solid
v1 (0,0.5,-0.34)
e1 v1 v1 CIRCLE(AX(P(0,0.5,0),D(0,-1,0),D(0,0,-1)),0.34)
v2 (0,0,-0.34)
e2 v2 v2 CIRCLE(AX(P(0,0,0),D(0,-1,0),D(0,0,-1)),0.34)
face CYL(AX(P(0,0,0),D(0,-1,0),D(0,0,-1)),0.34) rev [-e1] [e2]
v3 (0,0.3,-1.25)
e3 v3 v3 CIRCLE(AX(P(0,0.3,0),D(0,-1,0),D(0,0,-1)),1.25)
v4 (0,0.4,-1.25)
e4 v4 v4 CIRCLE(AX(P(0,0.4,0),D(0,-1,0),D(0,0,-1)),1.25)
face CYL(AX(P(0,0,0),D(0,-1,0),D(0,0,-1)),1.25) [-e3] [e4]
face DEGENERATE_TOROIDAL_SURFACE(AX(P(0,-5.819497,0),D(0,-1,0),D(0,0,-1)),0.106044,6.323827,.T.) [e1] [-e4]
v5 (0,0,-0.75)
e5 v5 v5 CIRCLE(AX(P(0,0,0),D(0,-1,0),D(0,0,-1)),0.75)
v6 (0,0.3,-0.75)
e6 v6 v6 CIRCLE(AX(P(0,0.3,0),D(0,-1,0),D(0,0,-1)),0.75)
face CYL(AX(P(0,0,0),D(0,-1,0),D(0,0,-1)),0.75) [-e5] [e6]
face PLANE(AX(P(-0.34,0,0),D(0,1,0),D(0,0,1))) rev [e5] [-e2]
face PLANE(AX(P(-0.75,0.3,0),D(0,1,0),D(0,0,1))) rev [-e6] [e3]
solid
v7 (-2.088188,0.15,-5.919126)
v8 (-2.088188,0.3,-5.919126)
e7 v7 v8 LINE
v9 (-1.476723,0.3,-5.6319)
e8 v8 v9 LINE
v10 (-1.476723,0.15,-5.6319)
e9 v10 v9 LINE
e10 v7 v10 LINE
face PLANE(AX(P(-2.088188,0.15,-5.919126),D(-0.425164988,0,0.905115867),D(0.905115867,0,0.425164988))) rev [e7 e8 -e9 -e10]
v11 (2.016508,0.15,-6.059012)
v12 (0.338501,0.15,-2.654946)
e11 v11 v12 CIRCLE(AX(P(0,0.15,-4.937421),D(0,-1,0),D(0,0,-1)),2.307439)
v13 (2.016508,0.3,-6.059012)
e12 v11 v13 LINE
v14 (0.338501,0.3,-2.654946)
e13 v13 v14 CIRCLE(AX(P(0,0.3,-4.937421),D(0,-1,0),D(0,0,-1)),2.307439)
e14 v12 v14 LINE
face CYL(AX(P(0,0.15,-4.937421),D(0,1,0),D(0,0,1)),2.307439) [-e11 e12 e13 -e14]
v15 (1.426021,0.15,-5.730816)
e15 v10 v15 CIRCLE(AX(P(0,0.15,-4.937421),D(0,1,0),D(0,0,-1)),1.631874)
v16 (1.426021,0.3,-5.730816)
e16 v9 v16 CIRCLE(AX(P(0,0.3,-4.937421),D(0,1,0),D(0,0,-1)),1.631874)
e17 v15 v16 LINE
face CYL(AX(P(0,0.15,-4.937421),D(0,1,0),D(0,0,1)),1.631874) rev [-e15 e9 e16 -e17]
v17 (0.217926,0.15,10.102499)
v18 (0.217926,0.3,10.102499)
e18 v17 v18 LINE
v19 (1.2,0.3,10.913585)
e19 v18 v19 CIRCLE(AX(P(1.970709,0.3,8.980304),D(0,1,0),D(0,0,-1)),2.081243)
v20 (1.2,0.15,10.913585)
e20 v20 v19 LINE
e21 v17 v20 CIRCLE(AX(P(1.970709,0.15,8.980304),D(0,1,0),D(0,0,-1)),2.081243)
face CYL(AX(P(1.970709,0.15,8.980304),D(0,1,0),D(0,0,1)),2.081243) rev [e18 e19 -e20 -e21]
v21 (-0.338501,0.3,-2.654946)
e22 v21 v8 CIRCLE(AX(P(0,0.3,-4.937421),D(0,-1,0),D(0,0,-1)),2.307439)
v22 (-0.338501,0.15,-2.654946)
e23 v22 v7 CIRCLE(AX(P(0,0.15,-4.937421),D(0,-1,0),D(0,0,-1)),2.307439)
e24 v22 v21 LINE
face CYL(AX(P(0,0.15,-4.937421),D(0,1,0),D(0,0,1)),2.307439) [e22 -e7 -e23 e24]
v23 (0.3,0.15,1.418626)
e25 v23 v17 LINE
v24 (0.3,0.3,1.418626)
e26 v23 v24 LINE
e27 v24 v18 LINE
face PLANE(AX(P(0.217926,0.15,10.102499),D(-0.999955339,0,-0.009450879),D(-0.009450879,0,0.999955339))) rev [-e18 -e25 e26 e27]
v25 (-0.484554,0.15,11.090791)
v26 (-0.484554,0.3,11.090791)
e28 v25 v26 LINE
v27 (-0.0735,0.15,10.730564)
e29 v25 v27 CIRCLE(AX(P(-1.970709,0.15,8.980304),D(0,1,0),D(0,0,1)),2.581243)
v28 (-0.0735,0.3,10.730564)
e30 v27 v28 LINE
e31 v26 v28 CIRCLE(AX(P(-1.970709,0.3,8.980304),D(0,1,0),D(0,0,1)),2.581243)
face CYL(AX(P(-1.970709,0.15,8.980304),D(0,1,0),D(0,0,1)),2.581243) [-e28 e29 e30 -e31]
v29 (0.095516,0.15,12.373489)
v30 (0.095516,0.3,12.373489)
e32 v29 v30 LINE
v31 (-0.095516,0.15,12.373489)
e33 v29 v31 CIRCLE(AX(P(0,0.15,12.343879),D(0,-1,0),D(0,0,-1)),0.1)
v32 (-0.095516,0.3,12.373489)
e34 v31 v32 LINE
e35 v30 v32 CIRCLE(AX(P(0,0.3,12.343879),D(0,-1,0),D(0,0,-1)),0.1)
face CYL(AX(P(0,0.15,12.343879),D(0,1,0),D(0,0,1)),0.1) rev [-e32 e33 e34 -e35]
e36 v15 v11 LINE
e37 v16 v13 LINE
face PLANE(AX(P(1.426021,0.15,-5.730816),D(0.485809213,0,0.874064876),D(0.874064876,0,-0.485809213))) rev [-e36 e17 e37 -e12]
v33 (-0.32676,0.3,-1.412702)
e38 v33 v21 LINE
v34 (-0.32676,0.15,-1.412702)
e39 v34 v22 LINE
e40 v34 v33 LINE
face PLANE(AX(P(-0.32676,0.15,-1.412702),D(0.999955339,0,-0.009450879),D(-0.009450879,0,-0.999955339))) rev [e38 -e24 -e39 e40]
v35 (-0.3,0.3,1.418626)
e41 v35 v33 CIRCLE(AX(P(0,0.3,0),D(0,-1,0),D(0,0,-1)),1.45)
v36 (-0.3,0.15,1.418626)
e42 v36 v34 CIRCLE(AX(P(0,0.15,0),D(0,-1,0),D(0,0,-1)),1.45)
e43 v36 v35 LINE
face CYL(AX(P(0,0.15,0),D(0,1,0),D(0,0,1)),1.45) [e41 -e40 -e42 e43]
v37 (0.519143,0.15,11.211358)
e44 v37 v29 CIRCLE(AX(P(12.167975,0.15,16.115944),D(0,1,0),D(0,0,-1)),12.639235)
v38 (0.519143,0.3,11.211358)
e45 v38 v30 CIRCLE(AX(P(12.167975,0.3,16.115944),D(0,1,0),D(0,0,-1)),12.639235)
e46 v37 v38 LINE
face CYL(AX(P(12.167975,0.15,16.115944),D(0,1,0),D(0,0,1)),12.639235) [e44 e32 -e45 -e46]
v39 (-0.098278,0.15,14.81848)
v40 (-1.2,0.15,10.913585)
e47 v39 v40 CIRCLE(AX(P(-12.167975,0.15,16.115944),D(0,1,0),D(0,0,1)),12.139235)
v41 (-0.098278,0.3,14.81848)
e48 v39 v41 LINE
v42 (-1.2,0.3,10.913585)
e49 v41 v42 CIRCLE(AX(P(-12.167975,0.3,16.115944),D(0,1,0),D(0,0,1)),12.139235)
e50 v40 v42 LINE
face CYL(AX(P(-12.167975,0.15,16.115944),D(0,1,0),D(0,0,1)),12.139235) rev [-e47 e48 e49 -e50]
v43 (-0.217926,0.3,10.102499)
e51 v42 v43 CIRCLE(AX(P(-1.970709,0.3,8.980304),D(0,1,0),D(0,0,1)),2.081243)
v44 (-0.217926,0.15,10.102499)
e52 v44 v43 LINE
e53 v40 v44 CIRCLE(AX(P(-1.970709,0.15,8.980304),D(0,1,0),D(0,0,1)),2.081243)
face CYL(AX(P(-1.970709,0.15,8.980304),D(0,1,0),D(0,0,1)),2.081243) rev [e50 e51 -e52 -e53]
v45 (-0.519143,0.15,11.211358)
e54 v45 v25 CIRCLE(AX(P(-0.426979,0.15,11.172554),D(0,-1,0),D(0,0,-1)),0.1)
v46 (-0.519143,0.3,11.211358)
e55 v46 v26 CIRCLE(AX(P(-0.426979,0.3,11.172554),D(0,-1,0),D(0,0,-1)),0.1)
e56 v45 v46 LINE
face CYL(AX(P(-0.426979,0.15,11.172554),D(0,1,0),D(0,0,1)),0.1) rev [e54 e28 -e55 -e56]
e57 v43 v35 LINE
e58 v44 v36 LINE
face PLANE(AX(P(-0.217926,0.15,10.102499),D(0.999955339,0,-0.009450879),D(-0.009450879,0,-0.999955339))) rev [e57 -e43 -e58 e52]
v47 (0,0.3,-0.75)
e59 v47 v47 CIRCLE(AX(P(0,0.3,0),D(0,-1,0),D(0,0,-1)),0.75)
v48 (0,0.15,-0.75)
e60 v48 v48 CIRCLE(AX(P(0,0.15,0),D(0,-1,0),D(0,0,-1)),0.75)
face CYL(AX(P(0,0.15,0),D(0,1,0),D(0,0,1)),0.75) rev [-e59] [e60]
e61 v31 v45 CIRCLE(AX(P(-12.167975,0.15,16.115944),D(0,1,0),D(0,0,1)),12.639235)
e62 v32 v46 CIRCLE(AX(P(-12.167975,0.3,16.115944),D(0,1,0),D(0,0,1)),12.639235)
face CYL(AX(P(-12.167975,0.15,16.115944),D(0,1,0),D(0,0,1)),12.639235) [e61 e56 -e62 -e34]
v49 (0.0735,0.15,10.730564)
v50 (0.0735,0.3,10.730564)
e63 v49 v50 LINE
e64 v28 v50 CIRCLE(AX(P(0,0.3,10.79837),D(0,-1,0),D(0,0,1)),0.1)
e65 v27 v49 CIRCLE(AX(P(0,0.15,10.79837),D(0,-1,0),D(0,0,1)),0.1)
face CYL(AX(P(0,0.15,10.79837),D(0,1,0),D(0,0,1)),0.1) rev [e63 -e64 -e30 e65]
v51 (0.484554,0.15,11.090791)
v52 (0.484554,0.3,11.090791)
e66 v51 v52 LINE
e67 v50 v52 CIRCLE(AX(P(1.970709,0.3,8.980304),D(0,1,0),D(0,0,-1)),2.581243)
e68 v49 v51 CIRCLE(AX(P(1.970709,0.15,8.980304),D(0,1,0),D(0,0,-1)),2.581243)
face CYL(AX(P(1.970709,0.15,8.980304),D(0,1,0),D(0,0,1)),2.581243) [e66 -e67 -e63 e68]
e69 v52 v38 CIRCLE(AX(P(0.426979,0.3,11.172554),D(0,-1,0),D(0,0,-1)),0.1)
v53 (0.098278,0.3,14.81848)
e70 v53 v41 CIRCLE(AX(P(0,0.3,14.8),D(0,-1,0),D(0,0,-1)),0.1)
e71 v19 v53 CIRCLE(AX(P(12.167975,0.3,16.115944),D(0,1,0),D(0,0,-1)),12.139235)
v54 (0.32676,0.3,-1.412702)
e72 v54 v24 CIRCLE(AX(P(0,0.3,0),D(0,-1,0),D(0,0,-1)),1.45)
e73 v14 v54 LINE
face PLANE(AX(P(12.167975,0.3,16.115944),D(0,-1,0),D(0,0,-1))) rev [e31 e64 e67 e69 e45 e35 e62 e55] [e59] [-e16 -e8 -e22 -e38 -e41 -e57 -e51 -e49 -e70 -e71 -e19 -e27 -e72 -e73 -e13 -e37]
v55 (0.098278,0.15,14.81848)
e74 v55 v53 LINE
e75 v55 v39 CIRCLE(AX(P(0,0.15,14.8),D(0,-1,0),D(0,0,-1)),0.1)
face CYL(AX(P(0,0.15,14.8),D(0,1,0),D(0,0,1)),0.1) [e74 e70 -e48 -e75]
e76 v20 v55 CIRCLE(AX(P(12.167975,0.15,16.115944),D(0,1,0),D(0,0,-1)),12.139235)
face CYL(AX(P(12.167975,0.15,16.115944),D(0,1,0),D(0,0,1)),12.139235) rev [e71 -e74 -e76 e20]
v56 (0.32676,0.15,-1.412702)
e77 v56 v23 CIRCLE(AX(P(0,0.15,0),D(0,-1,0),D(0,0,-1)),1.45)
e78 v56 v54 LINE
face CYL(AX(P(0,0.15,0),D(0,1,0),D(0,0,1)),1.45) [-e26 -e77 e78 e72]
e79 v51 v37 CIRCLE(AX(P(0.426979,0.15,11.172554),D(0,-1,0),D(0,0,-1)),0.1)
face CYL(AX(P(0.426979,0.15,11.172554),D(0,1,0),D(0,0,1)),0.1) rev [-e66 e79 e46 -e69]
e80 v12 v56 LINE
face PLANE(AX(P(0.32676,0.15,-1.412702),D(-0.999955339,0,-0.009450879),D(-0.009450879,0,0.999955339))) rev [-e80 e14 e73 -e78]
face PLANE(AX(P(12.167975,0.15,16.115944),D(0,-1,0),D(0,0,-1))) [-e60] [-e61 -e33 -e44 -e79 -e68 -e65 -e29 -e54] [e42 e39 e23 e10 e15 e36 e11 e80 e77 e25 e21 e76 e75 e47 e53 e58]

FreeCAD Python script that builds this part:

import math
import FreeCAD as App
import Part
import Sketcher

V = App.Vector

doc = App.newDocument("Part")
body = doc.addObject("PartDesign::Body", "Body")

sketch1 = body.newObject("Sketcher::SketchObject", "Sketch")
sketch1.AttachmentSupport = (doc.getObject("XY_Plane"), [""])
sketch1.MapMode = "FlatFace"
sketch1.addGeometry([
    Part.LineSegment(V(-0.75, 0, 0), V(-0.34, 0, 0)),
    Part.LineSegment(V(-0.34, 0, 0), V(-0.34, 0.5, 0)),
    Part.ArcOfCircle(Part.Circle(V(-0.11, -5.82, 0), V(0, 0, 1), 6.32), math.radians(92.12), math.radians(100.42)),
    Part.LineSegment(V(-1.25, 0.4, 0), V(-1.25, 0.3, 0)),
    Part.LineSegment(V(-1.25, 0.3, 0), V(-0.75, 0.3, 0)),
    Part.LineSegment(V(-0.75, 0.3, 0), V(-0.75, 0, 0)),
], False)
sketch1.addConstraint([
    Sketcher.Constraint("Coincident", 0, 2, 1, 1),
    Sketcher.Constraint("Coincident", 1, 2, 2, 1),
    Sketcher.Constraint("Coincident", 2, 2, 3, 1),
    Sketcher.Constraint("Coincident", 3, 2, 4, 1),
    Sketcher.Constraint("Coincident", 4, 2, 5, 1),
    Sketcher.Constraint("Coincident", 5, 2, 0, 1),
    Sketcher.Constraint("Horizontal", 0),
    Sketcher.Constraint("Vertical", 1),
    Sketcher.Constraint("Vertical", 3),
    Sketcher.Constraint("Horizontal", 4),
    Sketcher.Constraint("Vertical", 5),
    Sketcher.Constraint("PointOnObject", 0, 2, -1),
    Sketcher.Constraint("Equal", 4, 1),
    Sketcher.Constraint("DistanceX", 4, 1, 4, 2, 0.5),
    Sketcher.Constraint("DistanceY", 3, 2, 3, 1, 0.1),
    Sketcher.Constraint("DistanceY", 5, 2, 5, 1, 0.3),
    Sketcher.Constraint("DistanceX", 0, 1, 0, 2, 0.41),
    Sketcher.Constraint("DistanceX", 0, 2, -1, 1, 0.34),
    Sketcher.Constraint("Radius", 2, 6.323827),
])
revolution = body.newObject("PartDesign::Revolution", "Revolution")
revolution.Profile = sketch1
revolution.ReferenceAxis = (sketch1, ["V_Axis"])
revolution.Angle = 360
body2 = doc.addObject("PartDesign::Body", "Body001")

sketch2 = body2.newObject("Sketcher::SketchObject", "Sketch001")
sketch2.AttachmentSupport = (doc.getObject("XZ_Plane001"), [""])
sketch2.MapMode = "FlatFace"
sketch2.AttachmentOffset = App.Placement(V(0, 0, -0.3), App.Rotation())
sketch2.addGeometry([
    Part.LineSegment(V(0.34, -2.65, 0), V(0.33, -1.41, 0)),
    Part.ArcOfCircle(Part.Circle(V(0, 0, 0), V(0, 0, 1), 1.45), math.radians(-77), math.radians(78)),
    Part.LineSegment(V(0.3, 1.42, 0), V(0.22, 10.1, 0)),
    Part.ArcOfCircle(Part.Circle(V(1.97, 8.98, 0), V(0, 0, 1), 2.08), math.radians(112), math.radians(147)),
    Part.ArcOfCircle(Part.Circle(V(12.17, 16.12, 0), V(0, 0, 1), 12.14), math.radians(-173.86), math.radians(-154.62)),
    Part.ArcOfCircle(Part.Circle(V(0, 14.8, 0), V(0, 0, 1), 0.1), math.radians(11), math.radians(169)),
    Part.ArcOfCircle(Part.Circle(V(-12.17, 16.12, 0), V(0, 0, 1), 12.14), math.radians(-25.38), math.radians(-6.14)),
    Part.ArcOfCircle(Part.Circle(V(-1.97, 8.98, 0), V(0, 0, 1), 2.08), math.radians(33), math.radians(68)),
    Part.LineSegment(V(-0.22, 10.1, 0), V(-0.3, 1.42, 0)),
    Part.ArcOfCircle(Part.Circle(V(0, 0, 0), V(0, 0, 1), 1.45), math.radians(102), math.radians(257)),
    Part.LineSegment(V(-0.33, -1.41, 0), V(-0.34, -2.65, 0)),
    Part.ArcOfCircle(Part.Circle(V(0, -4.94, 0), V(0, 0, 1), 2.31), math.radians(98), math.radians(205)),
    Part.LineSegment(V(-2.09, -5.92, 0), V(-1.48, -5.63, 0)),
    Part.ArcOfCircle(Part.Circle(V(0, -4.94, 0), V(0, 0, 1), 1.63), math.radians(-29), math.radians(205)),
    Part.LineSegment(V(1.43, -5.73, 0), V(2.02, -6.06, 0)),
    Part.ArcOfCircle(Part.Circle(V(0, -4.94, 0), V(0, 0, 1), 2.31), math.radians(-29), math.radians(82)),
    Part.Circle(V(0, 0, 0), V(0, 0, 1), 0.75),
    Part.ArcOfCircle(Part.Circle(V(1.97, 8.98, 0), V(0, 0, 1), 2.58), math.radians(125.15), math.radians(137.31)),
    Part.ArcOfCircle(Part.Circle(V(0, 10.8, 0), V(0, 0, 1), 0.1), math.radians(-137), math.radians(-43)),
    Part.ArcOfCircle(Part.Circle(V(-1.97, 8.98, 0), V(0, 0, 1), 2.58), math.radians(42.69), math.radians(54.85)),
    Part.ArcOfCircle(Part.Circle(V(-0.43, 11.17, 0), V(0, 0, 1), 0.1), math.radians(157), math.radians(235)),
    Part.ArcOfCircle(Part.Circle(V(-12.17, 16.12, 0), V(0, 0, 1), 12.64), math.radians(-22.83), math.radians(-17.22)),
    Part.ArcOfCircle(Part.Circle(V(0, 12.34, 0), V(0, 0, 1), 0.1), math.radians(17), math.radians(163)),
    Part.ArcOfCircle(Part.Circle(V(12.17, 16.12, 0), V(0, 0, 1), 12.64), math.radians(-162.78), math.radians(-157.17)),
    Part.ArcOfCircle(Part.Circle(V(0.43, 11.17, 0), V(0, 0, 1), 0.1), math.radians(-55), math.radians(23)),
], False)
sketch2.addConstraint([
    Sketcher.Constraint("Coincident", 0, 2, 1, 1),
    Sketcher.Constraint("Coincident", 1, 2, 2, 1),
    Sketcher.Constraint("Coincident", 2, 2, 3, 2),
    Sketcher.Constraint("Coincident", 3, 1, 4, 2),
    Sketcher.Constraint("Coincident", 4, 1, 5, 1),
    Sketcher.Constraint("Coincident", 5, 2, 6, 2),
    Sketcher.Constraint("Coincident", 6, 1, 7, 2),
    Sketcher.Constraint("Coincident", 7, 1, 8, 1),
    Sketcher.Constraint("Coincident", 8, 2, 9, 1),
    Sketcher.Constraint("Coincident", 9, 2, 10, 1),
    Sketcher.Constraint("Coincident", 10, 2, 11, 1),
    Sketcher.Constraint("Coincident", 11, 2, 12, 1),
    Sketcher.Constraint("Coincident", 12, 2, 13, 2),
    Sketcher.Constraint("Coincident", 13, 1, 14, 1),
    Sketcher.Constraint("Coincident", 14, 2, 15, 1),
    Sketcher.Constraint("Coincident", 15, 2, 0, 1),
    Sketcher.Constraint("Tangent", 17, 2, 18, 2),
    Sketcher.Constraint("Tangent", 18, 1, 19, 1),
    Sketcher.Constraint("Tangent", 19, 2, 20, 2),
    Sketcher.Constraint("Tangent", 20, 1, 21, 1),
    Sketcher.Constraint("Tangent", 21, 2, 22, 2),
    Sketcher.Constraint("Tangent", 22, 1, 23, 1),
    Sketcher.Constraint("Tangent", 23, 2, 24, 2),
    Sketcher.Constraint("Tangent", 24, 1, 17, 1),
    Sketcher.Constraint("Coincident", 1, 3, -1, 1),
    Sketcher.Constraint("Coincident", 9, 3, -1, 1),
    Sketcher.Constraint("Coincident", 16, 3, -1, 1),
    Sketcher.Constraint("Coincident", 13, 3, 11, 3),
    Sketcher.Constraint("Coincident", 15, 3, 11, 3),
    Sketcher.Constraint("Coincident", 17, 3, 3, 3),
    Sketcher.Constraint("Coincident", 19, 3, 7, 3),
    Sketcher.Constraint("Coincident", 21, 3, 6, 3),
    Sketcher.Constraint("Coincident", 23, 3, 4, 3),
    Sketcher.Constraint("Equal", 4, 6),
    Sketcher.Constraint("Equal", 3, 7),
    Sketcher.Constraint("Equal", 1, 9),
    Sketcher.Constraint("Equal", 11, 15),
    Sketcher.Constraint("Equal", 5, 18),
    Sketcher.Constraint("Equal", 17, 19),
    Sketcher.Constraint("Equal", 18, 20),
    Sketcher.Constraint("Equal", 20, 22),
    Sketcher.Constraint("Equal", 21, 23),
    Sketcher.Constraint("Equal", 22, 24),
    Sketcher.Constraint("Symmetric", 4, 3, 6, 3, -2),
    Sketcher.Constraint("Symmetric", 3, 3, 7, 3, -2),
    Sketcher.Constraint("Symmetric", 10, 2, 15, 2, -2),
    Sketcher.Constraint("PointOnObject", 5, 3, -2),
    Sketcher.Constraint("Parallel", 0, 2),
    Sketcher.Constraint("Parallel", 8, 10),
    Sketcher.Constraint("Horizontal", 2, 2, 7, 1),
    Sketcher.Constraint("Horizontal", 1, 2, 8, 2),
    Sketcher.Constraint("Diameter", 16, 1.5),
    Sketcher.Constraint("Radius", 5, 0.1),
    Sketcher.Constraint("Radius", 1, 1.45),
    Sketcher.Constraint("DistanceY", -1, 1, 5, 3, 14.8),
    Sketcher.Constraint("DistanceX", -1, 1, 1, 2, 0.3),
    Sketcher.Constraint("DistanceX", -1, 1, 3, 1, 1.2),
    Sketcher.Constraint("Radius", 11, 2.307439),
    Sketcher.Constraint("Radius", 3, 2.081243),
    Sketcher.Constraint("Radius", 4, 12.139235),
    Sketcher.Constraint("Radius", 13, 1.631874),
    Sketcher.Constraint("Radius", 17, 2.581242),
    Sketcher.Constraint("Radius", 21, 12.639234),
    Sketcher.Constraint("DistanceX", 10, 2, 15, 2, 0.677001),
    Sketcher.Constraint("DistanceX", 18, 1, 17, 2, 0.147),
    Sketcher.Constraint("Distance", 0, 1.242299),
    Sketcher.Constraint("DistanceY", -1, 1, 2, 2, 10.102499),
    Sketcher.Constraint("DistanceY", 12, 2, -1, 1, 5.6319),
    Sketcher.Constraint("DistanceY", 22, 3, 4, 1, 2.474601),
    Sketcher.Constraint("DistanceX", 4, 1, 24, 3, 0.328702),
    Sketcher.Constraint("DistanceX", -1, 1, 13, 1, 1.426021),
    Sketcher.Constraint("DistanceX", -1, 1, 14, 2, 2.016508),
    Sketcher.Constraint("DistanceY", 11, 2, 10, 2, 3.26418),
])
pad1 = body2.newObject("PartDesign::Pad", "Pad")
pad1.Profile = sketch2
pad1.Length = 0.15

doc.recompute()
